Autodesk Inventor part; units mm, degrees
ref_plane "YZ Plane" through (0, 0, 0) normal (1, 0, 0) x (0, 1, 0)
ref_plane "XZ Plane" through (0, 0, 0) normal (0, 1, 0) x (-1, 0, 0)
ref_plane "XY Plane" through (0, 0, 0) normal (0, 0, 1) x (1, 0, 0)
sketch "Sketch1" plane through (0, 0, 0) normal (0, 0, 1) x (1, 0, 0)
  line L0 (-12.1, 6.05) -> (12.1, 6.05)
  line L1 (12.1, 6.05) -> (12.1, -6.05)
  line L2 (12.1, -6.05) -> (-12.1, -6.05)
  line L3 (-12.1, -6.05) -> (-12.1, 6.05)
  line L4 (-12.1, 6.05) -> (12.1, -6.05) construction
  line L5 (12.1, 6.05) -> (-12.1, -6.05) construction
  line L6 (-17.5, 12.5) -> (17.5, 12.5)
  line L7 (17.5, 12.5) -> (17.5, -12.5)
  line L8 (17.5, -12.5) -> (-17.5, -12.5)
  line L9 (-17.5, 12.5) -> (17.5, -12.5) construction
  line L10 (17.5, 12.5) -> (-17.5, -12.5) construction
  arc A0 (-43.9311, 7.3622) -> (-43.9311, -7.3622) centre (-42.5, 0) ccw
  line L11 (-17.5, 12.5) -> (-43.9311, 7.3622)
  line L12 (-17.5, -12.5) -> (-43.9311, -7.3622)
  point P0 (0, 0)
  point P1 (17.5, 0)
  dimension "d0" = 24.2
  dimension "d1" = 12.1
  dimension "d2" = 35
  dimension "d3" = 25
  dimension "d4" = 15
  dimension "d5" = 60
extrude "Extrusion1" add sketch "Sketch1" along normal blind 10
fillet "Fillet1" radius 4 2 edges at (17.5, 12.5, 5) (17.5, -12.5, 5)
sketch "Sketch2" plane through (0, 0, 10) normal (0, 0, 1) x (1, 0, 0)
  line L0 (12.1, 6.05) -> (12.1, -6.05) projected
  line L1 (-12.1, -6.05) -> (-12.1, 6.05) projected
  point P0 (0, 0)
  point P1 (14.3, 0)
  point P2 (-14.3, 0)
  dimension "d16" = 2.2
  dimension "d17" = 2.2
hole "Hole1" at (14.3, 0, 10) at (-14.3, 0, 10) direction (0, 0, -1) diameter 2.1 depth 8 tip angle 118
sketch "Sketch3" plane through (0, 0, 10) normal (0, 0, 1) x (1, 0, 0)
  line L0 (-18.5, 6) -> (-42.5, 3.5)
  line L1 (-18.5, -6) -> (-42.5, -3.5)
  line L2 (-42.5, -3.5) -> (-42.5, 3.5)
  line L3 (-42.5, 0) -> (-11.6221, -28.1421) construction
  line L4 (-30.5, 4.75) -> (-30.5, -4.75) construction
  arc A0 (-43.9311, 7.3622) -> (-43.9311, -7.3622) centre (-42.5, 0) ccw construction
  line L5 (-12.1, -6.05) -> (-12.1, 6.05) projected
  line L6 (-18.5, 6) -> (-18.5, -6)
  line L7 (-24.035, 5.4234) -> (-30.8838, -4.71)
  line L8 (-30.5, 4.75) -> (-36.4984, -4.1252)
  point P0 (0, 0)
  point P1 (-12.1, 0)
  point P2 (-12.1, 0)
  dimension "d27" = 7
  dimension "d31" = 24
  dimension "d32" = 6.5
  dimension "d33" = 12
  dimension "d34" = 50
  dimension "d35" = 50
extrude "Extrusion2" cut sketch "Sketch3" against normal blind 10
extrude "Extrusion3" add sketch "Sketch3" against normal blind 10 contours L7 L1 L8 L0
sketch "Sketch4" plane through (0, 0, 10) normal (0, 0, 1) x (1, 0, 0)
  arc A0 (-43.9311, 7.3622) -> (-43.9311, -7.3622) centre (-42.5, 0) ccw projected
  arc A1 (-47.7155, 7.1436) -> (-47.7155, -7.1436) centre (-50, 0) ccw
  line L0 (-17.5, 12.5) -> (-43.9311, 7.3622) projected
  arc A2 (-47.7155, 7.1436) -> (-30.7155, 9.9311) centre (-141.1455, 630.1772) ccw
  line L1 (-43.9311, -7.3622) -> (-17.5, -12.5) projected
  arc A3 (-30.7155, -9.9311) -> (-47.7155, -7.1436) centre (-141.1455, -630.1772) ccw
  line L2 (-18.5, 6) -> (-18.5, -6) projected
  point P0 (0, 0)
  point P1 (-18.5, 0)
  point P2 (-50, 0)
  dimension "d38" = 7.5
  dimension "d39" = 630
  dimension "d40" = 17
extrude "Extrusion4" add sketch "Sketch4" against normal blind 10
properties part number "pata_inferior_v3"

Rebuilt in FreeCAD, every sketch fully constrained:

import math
import FreeCAD as App
import Part
import Sketcher

V = App.Vector
Q = App.Units.Quantity


def edges_at(feature, points):
    """Names of the edges that pass closest to the given points."""
    edges = feature.Shape.Edges
    near = lambda p: min(range(len(edges)), key=lambda i: edges[i].distToShape(Part.Vertex(*p))[0])
    return sorted({f"Edge{near(p) + 1}" for p in points})


def add_polygon(sketch, points):
    """Adds a closed chain of lines whose ends are joined by coincident constraints."""
    first, n = sketch.GeometryCount, len(points)
    for a, b in zip(points, points[1:] + points[:1]):
        sketch.addGeometry(Part.LineSegment(App.Vector(*a, 0), App.Vector(*b, 0)), False)
    for i in range(n):
        sketch.addConstraint(Sketcher.Constraint("Coincident", first + i, 2, first + (i + 1) % n, 1))

doc = App.newDocument("Part")
body = doc.addObject("PartDesign::Body", "Body")

# Sketch on XY plane
sketch1 = body.newObject("Sketcher::SketchObject", "Sketch")
sketch1.AttachmentSupport = (doc.getObject("XY_Plane"), [""])
sketch1.MapMode = "FlatFace"
sketch1.addGeometry(Part.LineSegment(V(18, 12, 0), V(-18, 12, 0)), False)  # 0
sketch1.addGeometry(Part.LineSegment(V(-18, 12, 0), V(-44, 7, 0)), False)  # 1
sketch1.addGeometry(Part.ArcOfCircle(Part.Circle(V(-42, 0, 0), V(0, 0, 1), 8), math.radians(101), math.radians(259)), False)  # 2
sketch1.addGeometry(Part.LineSegment(V(-44, -7, 0), V(-18, -12, 0)), False)  # 3
sketch1.addGeometry(Part.LineSegment(V(-18, -12, 0), V(18, -12, 0)), False)  # 4
sketch1.addGeometry(Part.LineSegment(V(18, -12, 0), V(18, 12, 0)), False)  # 5
add_polygon(sketch1, [(-12, -6), (-12, 6), (12, 6), (12, -6)])  # lines 6-9
sketch1.addConstraint([
    Sketcher.Constraint("Coincident", 0, 2, 1, 1),
    Sketcher.Constraint("Tangent", 1, 2, 2, 1),
    Sketcher.Constraint("Tangent", 2, 2, 3, 1),
    Sketcher.Constraint("Coincident", 3, 2, 4, 1),
    Sketcher.Constraint("Coincident", 4, 2, 5, 1),
    Sketcher.Constraint("Coincident", 5, 2, 0, 1),
    Sketcher.Constraint("Horizontal", 0),
    Sketcher.Constraint("Horizontal", 4),
    Sketcher.Constraint("Vertical", 5),
    Sketcher.Constraint("Vertical", 6),
    Sketcher.Constraint("Horizontal", 7),
    Sketcher.Constraint("Vertical", 8),
    Sketcher.Constraint("Horizontal", 9),
    Sketcher.Constraint("Symmetric", 0, 2, 4, 2, -1, 1),
    Sketcher.Constraint("Symmetric", 6, 2, 8, 2, -1, 1),
    Sketcher.Constraint("Symmetric", 1, 2, 2, 2, -1),
    Sketcher.Constraint("Radius", 2, Q("7.5 mm")),
    Sketcher.Constraint("DistanceX", 0, 2, 0, 1, Q("35 mm")),
    Sketcher.Constraint("DistanceY", 5, 1, 5, 2, Q("25 mm")),
    Sketcher.Constraint("DistanceX", 7, 1, 7, 2, Q("24.2 mm")),
    Sketcher.Constraint("DistanceY", 6, 1, 6, 2, Q("12.1 mm")),
    Sketcher.Constraint("DistanceX", 2, 3, 0, 2, Q("25 mm")),
])
pad1 = body.newObject("PartDesign::Pad", "Pad")
pad1.Profile = sketch1
pad1.Length = 10
doc.recompute()

fillet = body.newObject("PartDesign::Fillet", "Fillet")
fillet.Base = (pad1, edges_at(pad1, [(17.5, 12.5, 5), (17.5, -12.5, 5)]))
fillet.Radius = 4

# Sketch on XY plane
sketch2 = body.newObject("Sketcher::SketchObject", "Sketch001")
sketch2.AttachmentSupport = (doc.getObject("XY_Plane"), [""])
sketch2.MapMode = "FlatFace"
sketch2.AttachmentOffset = App.Placement(V(0, 0, 10), App.Rotation())
sketch2.addGeometry([
    Part.Circle(V(14.3, 0, 0), V(0, 0, 1), 1.1),
    Part.Circle(V(-14.3, 0, 0), V(0, 0, 1), 1.1),
], False)
sketch2.addConstraint([
    Sketcher.Constraint("Equal", 0, 1),
    Sketcher.Constraint("Symmetric", 0, 3, 1, 3, -1, 1),
    Sketcher.Constraint("PointOnObject", 0, 3, -1),
    Sketcher.Constraint("Diameter", 0, Q("2.1 mm")),
    Sketcher.Constraint("DistanceX", -1, 1, 0, 3, Q("14.3 mm")),
])
doc.recompute()
hole = body.newObject("PartDesign::Hole", "Hole")
hole.Profile = sketch2
hole.ThreadType = "None"
hole.Diameter = 2.1
hole.DepthType = "Dimension"
hole.Depth = 8
hole.DrillPoint = "Angled"
hole.DrillPointAngle = 118

# Sketch on XY plane
sketch3 = body.newObject("Sketcher::SketchObject", "Sketch002")
sketch3.AttachmentSupport = (doc.getObject("XY_Plane"), [""])
sketch3.MapMode = "FlatFace"
sketch3.AttachmentOffset = App.Placement(V(0, 0, 10), App.Rotation())
add_polygon(sketch3, [(-18, -6), (-18, 6), (-42, 4), (-42, -4)])  # lines 0-3
sketch3.addConstraint([
    Sketcher.Constraint("Vertical", 0),
    Sketcher.Constraint("Vertical", 2),
    Sketcher.Constraint("Equal", 1, 3),
    Sketcher.Constraint("DistanceY", 0, 1, 0, 2, Q("12 mm")),
    Sketcher.Constraint("DistanceY", 2, 2, 2, 1, Q("7 mm")),
    Sketcher.Constraint("DistanceX", 1, 2, 0, 2, Q("24 mm")),
    Sketcher.Constraint("DistanceY", -1, 1, 0, 2, Q("6 mm")),
    Sketcher.Constraint("DistanceX", 0, 2, -1, 1, Q("18.5 mm")),
])
pocket1 = body.newObject("PartDesign::Pocket", "Pocket")
pocket1.Profile = sketch3
pocket1.Length = 10

# Sketch on XY plane
sketch4 = body.newObject("Sketcher::SketchObject", "Sketch003")
sketch4.AttachmentSupport = (doc.getObject("XY_Plane"), [""])
sketch4.MapMode = "FlatFace"
sketch4.AttachmentOffset = App.Placement(V(0, 0, 10), App.Rotation())
add_polygon(sketch4, [(-30.8838, -4.71), (-24.035004, 5.423437), (-30.5, 4.75), (-36.498397, -4.125167)])  # lines 0-3
sketch4.addConstraint([
    Sketcher.Constraint("Parallel", 0, 2),
    Sketcher.Constraint("Distance", 1, Q("6.5 mm")),
    Sketcher.Constraint("DistanceX", 1, 2, -1, 1, Q("30.5 mm")),
    Sketcher.Constraint("DistanceY", -1, 1, 1, 2, Q("4.75 mm")),
    Sketcher.Constraint("DistanceY", 3, 2, -1, 1, Q("4.71 mm")),
    Sketcher.Constraint("Distance", 3, Q("5.645 mm")),
    Sketcher.Constraint("DistanceX", 0, 2, -1, 1, Q("24.035 mm")),
    Sketcher.Constraint("Distance", 0, Q("12.2308 mm")),
])
pad2 = body.newObject("PartDesign::Pad", "Pad001")
pad2.Profile = sketch4
pad2.Length = 10
pad2.Reversed = True

# Sketch on XY plane
sketch5 = body.newObject("Sketcher::SketchObject", "Sketch004")
sketch5.AttachmentSupport = (doc.getObject("XY_Plane"), [""])
sketch5.MapMode = "FlatFace"
sketch5.AttachmentOffset = App.Placement(V(0, 0, 10), App.Rotation())
sketch5.addGeometry([
    Part.ArcOfCircle(Part.Circle(V(-42, 0, 0), V(0, 0, 1), 8), math.radians(101), math.radians(259)),  # 0
    Part.LineSegment(V(-44, 7, 0), V(-31, 10, 0)),  # 1
    Part.ArcOfCircle(Part.Circle(V(-141, 630, 0), V(0, 0, 1), 630), math.radians(-81.47), math.radians(-79.9)),  # 2
    Part.ArcOfCircle(Part.Circle(V(-50, 0, 0), V(0, 0, 1), 7), math.radians(72), math.radians(288)),  # 3
    Part.ArcOfCircle(Part.Circle(V(-141, -630, 0), V(0, 0, 1), 630), math.radians(79.9), math.radians(81.47)),  # 4
    Part.LineSegment(V(-31, -10, 0), V(-44, -7, 0)),  # 5
], False)
sketch5.addConstraint([
    Sketcher.Constraint("Tangent", 0, 1, 1, 1),
    Sketcher.Constraint("Coincident", 1, 2, 2, 2),
    Sketcher.Constraint("Coincident", 2, 1, 3, 1),
    Sketcher.Constraint("Coincident", 3, 2, 4, 2),
    Sketcher.Constraint("Coincident", 4, 1, 5, 1),
    Sketcher.Constraint("Tangent", 5, 2, 0, 2),
    Sketcher.Constraint("Equal", 0, 3),
    Sketcher.Constraint("Symmetric", 2, 1, 3, 2, -1),
    Sketcher.Constraint("Symmetric", 0, 1, 5, 2, -1),
    Sketcher.Constraint("Equal", 1, 5),
    Sketcher.Constraint("Radius", 0, Q("7.5 mm")),
    Sketcher.Constraint("DistanceX", 2, 1, 1, 2, Q("17 mm")),
    Sketcher.Constraint("DistanceX", 3, 3, 0, 3, Q("7.5 mm")),
    Sketcher.Constraint("Angle", 1, Q("11.0002 deg")),
    Sketcher.Constraint("DistanceX", 3, 3, -1, 1, Q("50 mm")),
    Sketcher.Constraint("Radius", 2, Q("629.906 mm")),
    Sketcher.Constraint("Radius", 4, Q("630.094 mm")),
    Sketcher.Constraint("DistanceY", 4, 3, -1, 1, Q("630.27 mm")),
])
pad3 = body.newObject("PartDesign::Pad", "Pad002")
pad3.Profile = sketch5
pad3.Length = 10
pad3.Reversed = True

doc.recompute()
